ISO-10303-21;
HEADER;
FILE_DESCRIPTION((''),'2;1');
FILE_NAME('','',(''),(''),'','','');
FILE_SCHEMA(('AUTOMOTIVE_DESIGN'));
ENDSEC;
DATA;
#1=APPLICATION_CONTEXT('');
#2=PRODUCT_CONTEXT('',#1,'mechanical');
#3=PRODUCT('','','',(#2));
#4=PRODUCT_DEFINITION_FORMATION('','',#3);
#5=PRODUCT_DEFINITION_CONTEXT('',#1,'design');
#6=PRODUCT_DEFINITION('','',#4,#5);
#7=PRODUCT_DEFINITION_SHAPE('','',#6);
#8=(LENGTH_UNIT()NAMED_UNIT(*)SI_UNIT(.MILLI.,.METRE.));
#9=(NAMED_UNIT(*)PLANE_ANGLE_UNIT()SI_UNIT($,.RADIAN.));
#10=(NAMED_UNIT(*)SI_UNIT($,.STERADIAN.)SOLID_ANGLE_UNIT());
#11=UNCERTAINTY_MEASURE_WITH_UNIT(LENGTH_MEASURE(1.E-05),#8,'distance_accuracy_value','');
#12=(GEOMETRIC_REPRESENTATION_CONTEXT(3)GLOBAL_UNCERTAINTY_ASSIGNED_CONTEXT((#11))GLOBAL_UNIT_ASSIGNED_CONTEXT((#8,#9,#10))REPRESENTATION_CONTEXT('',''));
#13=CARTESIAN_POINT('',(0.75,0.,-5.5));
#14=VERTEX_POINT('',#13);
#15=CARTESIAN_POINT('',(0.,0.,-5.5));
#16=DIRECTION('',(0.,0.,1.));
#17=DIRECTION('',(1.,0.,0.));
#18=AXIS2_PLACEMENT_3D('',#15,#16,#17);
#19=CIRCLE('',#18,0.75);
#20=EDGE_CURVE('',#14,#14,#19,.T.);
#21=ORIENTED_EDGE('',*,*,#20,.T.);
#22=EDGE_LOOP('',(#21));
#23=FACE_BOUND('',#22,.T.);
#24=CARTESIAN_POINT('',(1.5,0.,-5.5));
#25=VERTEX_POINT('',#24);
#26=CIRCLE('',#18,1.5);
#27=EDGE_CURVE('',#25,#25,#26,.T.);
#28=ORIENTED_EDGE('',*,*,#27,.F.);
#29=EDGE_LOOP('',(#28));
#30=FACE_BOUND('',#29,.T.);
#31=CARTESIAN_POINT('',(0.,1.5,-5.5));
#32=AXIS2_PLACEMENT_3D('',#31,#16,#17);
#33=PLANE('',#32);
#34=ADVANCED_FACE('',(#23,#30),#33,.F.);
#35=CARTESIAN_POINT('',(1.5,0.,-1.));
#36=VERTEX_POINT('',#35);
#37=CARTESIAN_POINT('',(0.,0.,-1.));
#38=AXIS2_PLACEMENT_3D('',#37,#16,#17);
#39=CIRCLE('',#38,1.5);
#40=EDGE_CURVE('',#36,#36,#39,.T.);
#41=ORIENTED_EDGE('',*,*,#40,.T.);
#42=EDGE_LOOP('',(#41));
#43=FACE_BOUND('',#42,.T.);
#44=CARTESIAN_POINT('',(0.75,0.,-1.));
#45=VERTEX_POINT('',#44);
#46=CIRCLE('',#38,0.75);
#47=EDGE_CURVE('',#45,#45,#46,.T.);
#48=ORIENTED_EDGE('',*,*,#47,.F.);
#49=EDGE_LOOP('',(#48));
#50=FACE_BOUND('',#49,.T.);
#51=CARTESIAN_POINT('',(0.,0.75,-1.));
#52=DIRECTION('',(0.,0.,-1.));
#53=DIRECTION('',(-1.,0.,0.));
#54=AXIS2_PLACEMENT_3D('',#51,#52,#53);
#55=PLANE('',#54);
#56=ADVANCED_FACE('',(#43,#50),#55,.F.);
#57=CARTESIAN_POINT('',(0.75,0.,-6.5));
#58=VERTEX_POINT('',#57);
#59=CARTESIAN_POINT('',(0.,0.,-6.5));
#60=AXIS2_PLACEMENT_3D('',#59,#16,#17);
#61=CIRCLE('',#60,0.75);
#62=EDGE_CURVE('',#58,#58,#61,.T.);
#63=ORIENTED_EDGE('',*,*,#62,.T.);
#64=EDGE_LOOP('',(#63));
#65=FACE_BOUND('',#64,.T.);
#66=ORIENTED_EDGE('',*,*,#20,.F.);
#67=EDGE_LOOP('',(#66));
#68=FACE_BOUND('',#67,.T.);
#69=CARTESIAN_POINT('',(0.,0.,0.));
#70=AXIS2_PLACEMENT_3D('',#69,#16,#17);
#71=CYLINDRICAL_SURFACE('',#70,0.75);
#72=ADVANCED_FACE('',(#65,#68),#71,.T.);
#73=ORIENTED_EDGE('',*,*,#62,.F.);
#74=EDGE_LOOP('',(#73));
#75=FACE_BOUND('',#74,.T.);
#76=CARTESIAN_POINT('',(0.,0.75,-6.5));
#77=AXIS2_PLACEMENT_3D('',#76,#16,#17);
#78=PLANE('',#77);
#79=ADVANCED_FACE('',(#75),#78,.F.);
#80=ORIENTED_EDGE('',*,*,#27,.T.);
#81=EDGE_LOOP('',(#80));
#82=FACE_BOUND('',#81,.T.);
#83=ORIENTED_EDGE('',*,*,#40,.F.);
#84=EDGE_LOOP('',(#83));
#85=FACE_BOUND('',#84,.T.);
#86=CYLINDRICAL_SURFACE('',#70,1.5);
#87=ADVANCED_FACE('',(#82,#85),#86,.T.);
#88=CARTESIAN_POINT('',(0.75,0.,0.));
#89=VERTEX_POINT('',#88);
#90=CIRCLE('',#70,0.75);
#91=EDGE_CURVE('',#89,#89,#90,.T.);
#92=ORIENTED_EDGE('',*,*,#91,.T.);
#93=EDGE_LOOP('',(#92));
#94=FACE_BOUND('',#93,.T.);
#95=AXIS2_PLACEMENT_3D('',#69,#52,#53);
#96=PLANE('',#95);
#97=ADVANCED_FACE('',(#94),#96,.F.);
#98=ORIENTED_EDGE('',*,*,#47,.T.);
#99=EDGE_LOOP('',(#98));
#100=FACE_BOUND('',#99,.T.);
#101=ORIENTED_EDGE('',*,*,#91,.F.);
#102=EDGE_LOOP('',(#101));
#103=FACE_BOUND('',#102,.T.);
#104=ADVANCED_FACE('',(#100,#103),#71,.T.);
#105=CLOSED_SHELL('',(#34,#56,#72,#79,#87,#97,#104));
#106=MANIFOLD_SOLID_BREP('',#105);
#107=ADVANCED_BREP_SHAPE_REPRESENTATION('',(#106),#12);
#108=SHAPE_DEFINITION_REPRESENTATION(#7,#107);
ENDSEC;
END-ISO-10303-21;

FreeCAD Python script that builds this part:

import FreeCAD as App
import Part
import Sketcher


def add_polygon(sketch, points):
    """Adds a closed chain of lines whose ends are joined by coincident constraints."""
    first, n = sketch.GeometryCount, len(points)
    for a, b in zip(points, points[1:] + points[:1]):
        sketch.addGeometry(Part.LineSegment(App.Vector(*a, 0), App.Vector(*b, 0)), False)
    for i in range(n):
        sketch.addConstraint(Sketcher.Constraint("Coincident", first + i, 2, first + (i + 1) % n, 1))

doc = App.newDocument("Part")
body = doc.addObject("PartDesign::Body", "Body")

# Sketch on YZ plane
sketch1 = body.newObject("Sketcher::SketchObject", "Sketch")
sketch1.AttachmentSupport = (doc.getObject("YZ_Plane"), [""])
sketch1.MapMode = "FlatFace"
add_polygon(sketch1, [(0, 0), (0, -6.5), (0.8, -6.5), (0.8, -5.5), (1.5, -5.5), (1.5, -1), (0.8, -1), (0.8, 0)])  # lines 0-7
sketch1.addConstraint(Sketcher.Constraint("Vertical", 0))
sketch1.addConstraint(Sketcher.Constraint("Horizontal", 1))
sketch1.addConstraint(Sketcher.Constraint("Vertical", 2))
sketch1.addConstraint(Sketcher.Constraint("Horizontal", 3))
sketch1.addConstraint(Sketcher.Constraint("Vertical", 4))
sketch1.addConstraint(Sketcher.Constraint("Horizontal", 5))
sketch1.addConstraint(Sketcher.Constraint("Vertical", 6))
sketch1.addConstraint(Sketcher.Constraint("Horizontal", 7))
sketch1.addConstraint(Sketcher.Constraint("Coincident", 7, 2, -1, 1))
sketch1.addConstraint(Sketcher.Constraint("Vertical", 2, 2, 5, 2))
sketch1.addConstraint(Sketcher.Constraint("Equal", 1, 3))
sketch1.addConstraint(Sketcher.Constraint("Equal", 2, 6))
sketch1.addConstraint(Sketcher.Constraint("DistanceY", 2, 1, 2, 2, 1.0))
sketch1.addConstraint(Sketcher.Constraint("DistanceY", 0, 2, 0, 1, 6.5))
sketch1.addConstraint(Sketcher.Constraint("DistanceX", 1, 1, 1, 2, 0.75))
revolution = body.newObject("PartDesign::Revolution", "Revolution")
revolution.Profile = sketch1
revolution.ReferenceAxis = (sketch1, ["V_Axis"])
revolution.Angle = 360

doc.recompute()
